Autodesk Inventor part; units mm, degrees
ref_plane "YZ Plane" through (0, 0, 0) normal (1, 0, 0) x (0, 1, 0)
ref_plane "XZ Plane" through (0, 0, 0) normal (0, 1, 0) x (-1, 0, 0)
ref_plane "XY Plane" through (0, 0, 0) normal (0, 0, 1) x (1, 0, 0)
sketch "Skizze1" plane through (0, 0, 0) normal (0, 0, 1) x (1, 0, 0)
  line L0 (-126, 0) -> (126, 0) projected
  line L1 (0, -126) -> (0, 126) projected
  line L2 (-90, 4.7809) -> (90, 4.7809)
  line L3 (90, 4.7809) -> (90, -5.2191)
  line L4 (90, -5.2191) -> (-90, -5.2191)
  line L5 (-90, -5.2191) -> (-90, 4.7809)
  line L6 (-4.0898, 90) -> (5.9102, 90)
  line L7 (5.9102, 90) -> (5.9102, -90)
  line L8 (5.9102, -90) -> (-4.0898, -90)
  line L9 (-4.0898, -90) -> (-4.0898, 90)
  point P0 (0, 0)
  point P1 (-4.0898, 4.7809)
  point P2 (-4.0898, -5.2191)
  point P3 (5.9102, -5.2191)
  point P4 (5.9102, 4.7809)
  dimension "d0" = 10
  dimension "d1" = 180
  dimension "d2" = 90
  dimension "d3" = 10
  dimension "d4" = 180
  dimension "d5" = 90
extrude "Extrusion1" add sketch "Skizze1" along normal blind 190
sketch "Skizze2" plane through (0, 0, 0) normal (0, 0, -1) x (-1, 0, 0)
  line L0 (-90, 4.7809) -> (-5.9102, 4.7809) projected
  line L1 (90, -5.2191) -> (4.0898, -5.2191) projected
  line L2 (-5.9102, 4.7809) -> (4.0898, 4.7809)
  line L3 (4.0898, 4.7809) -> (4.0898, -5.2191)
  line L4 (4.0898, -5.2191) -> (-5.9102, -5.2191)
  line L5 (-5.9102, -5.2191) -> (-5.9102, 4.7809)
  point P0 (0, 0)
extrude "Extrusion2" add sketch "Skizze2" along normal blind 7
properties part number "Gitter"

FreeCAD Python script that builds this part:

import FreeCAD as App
import Part
import Sketcher

doc = App.newDocument("Part")
body = doc.addObject("PartDesign::Body", "Body")

# Sketch on XY plane
sketch1 = body.newObject("Sketcher::SketchObject", "Sketch")
sketch1.AttachmentSupport = (doc.getObject("XY_Plane"), [""])
sketch1.MapMode = "FlatFace"
sketch1.addGeometry(Part.LineSegment(App.Vector(-90, 4.7809, 0), App.Vector(-90, -5.2191, 0)), False)
sketch1.addGeometry(Part.LineSegment(App.Vector(-90, -5.2191, 0), App.Vector(-4.0898, -5.2191, 0)), False)
sketch1.addGeometry(Part.LineSegment(App.Vector(-4.0898, -5.2191, 0), App.Vector(-4.0898, -90, 0)), False)
sketch1.addGeometry(Part.LineSegment(App.Vector(-4.0898, -90, 0), App.Vector(5.9102, -90, 0)), False)
sketch1.addGeometry(Part.LineSegment(App.Vector(5.9102, -90, 0), App.Vector(5.9102, -5.2191, 0)), False)
sketch1.addGeometry(Part.LineSegment(App.Vector(5.9102, -5.2191, 0), App.Vector(90, -5.2191, 0)), False)
sketch1.addGeometry(Part.LineSegment(App.Vector(90, -5.2191, 0), App.Vector(90, 4.7809, 0)), False)
sketch1.addGeometry(Part.LineSegment(App.Vector(90, 4.7809, 0), App.Vector(5.9102, 4.7809, 0)), False)
sketch1.addGeometry(Part.LineSegment(App.Vector(5.9102, 4.7809, 0), App.Vector(5.9102, 90, 0)), False)
sketch1.addGeometry(Part.LineSegment(App.Vector(5.9102, 90, 0), App.Vector(-4.0898, 90, 0)), False)
sketch1.addGeometry(Part.LineSegment(App.Vector(-4.0898, 90, 0), App.Vector(-4.0898, 4.7809, 0)), False)
sketch1.addGeometry(Part.LineSegment(App.Vector(-4.0898, 4.7809, 0), App.Vector(-90, 4.7809, 0)), False)
sketch1.addConstraint(Sketcher.Constraint("Coincident", 0, 2, 1, 1))
sketch1.addConstraint(Sketcher.Constraint("Coincident", 1, 2, 2, 1))
sketch1.addConstraint(Sketcher.Constraint("Coincident", 2, 2, 3, 1))
sketch1.addConstraint(Sketcher.Constraint("Coincident", 3, 2, 4, 1))
sketch1.addConstraint(Sketcher.Constraint("Coincident", 4, 2, 5, 1))
sketch1.addConstraint(Sketcher.Constraint("Coincident", 5, 2, 6, 1))
sketch1.addConstraint(Sketcher.Constraint("Coincident", 6, 2, 7, 1))
sketch1.addConstraint(Sketcher.Constraint("Coincident", 7, 2, 8, 1))
sketch1.addConstraint(Sketcher.Constraint("Coincident", 8, 2, 9, 1))
sketch1.addConstraint(Sketcher.Constraint("Coincident", 9, 2, 10, 1))
sketch1.addConstraint(Sketcher.Constraint("Coincident", 10, 2, 11, 1))
sketch1.addConstraint(Sketcher.Constraint("Coincident", 11, 2, 0, 1))
sketch1.addConstraint(Sketcher.Constraint("Vertical", 0))
sketch1.addConstraint(Sketcher.Constraint("Horizontal", 1))
sketch1.addConstraint(Sketcher.Constraint("Vertical", 2))
sketch1.addConstraint(Sketcher.Constraint("Horizontal", 3))
sketch1.addConstraint(Sketcher.Constraint("Vertical", 4))
sketch1.addConstraint(Sketcher.Constraint("Horizontal", 5))
sketch1.addConstraint(Sketcher.Constraint("Vertical", 6))
sketch1.addConstraint(Sketcher.Constraint("Horizontal", 7))
sketch1.addConstraint(Sketcher.Constraint("Vertical", 8))
sketch1.addConstraint(Sketcher.Constraint("Horizontal", 9))
sketch1.addConstraint(Sketcher.Constraint("Vertical", 10))
sketch1.addConstraint(Sketcher.Constraint("Horizontal", 11))
sketch1.addConstraint(Sketcher.Constraint("Symmetric", 0, 2, 5, 2, -2))
sketch1.addConstraint(Sketcher.Constraint("Symmetric", 3, 2, 8, 2, -1))
sketch1.addConstraint(Sketcher.Constraint("Horizontal", 7, 2, 10, 2))
sketch1.addConstraint(Sketcher.Constraint("Vertical", 2, 2, 9, 2))
sketch1.addConstraint(Sketcher.Constraint("Equal", 9, 0))
sketch1.addConstraint(Sketcher.Constraint("DistanceX", 3, 1, 3, 2, 10.0))
sketch1.addConstraint(Sketcher.Constraint("DistanceX", 0, 2, -1, 1, 90.0))
sketch1.addConstraint(Sketcher.Constraint("DistanceY", 2, 2, -1, 1, 90.0))
sketch1.addConstraint(Sketcher.Constraint("DistanceY", 2, 2, 2, 1, 84.781))
sketch1.addConstraint(Sketcher.Constraint("DistanceX", 1, 1, 1, 2, 85.9102))
pad1 = body.newObject("PartDesign::Pad", "Pad")
pad1.Profile = sketch1
pad1.Length = 190

# Sketch on XY plane
sketch2 = body.newObject("Sketcher::SketchObject", "Sketch001")
sketch2.AttachmentSupport = (doc.getObject("XY_Plane"), [""])
sketch2.MapMode = "FlatFace"
sketch2.addGeometry(Part.LineSegment(App.Vector(-4.0898, 4.7809, 0), App.Vector(5.9102, 4.7809, 0)), False)
sketch2.addGeometry(Part.LineSegment(App.Vector(5.9102, 4.7809, 0), App.Vector(5.9102, -5.2191, 0)), False)
sketch2.addGeometry(Part.LineSegment(App.Vector(5.9102, -5.2191, 0), App.Vector(-4.0898, -5.2191, 0)), False)
sketch2.addGeometry(Part.LineSegment(App.Vector(-4.0898, -5.2191, 0), App.Vector(-4.0898, 4.7809, 0)), False)
sketch2.addConstraint(Sketcher.Constraint("Coincident", 0, 2, 1, 1))
sketch2.addConstraint(Sketcher.Constraint("Coincident", 1, 2, 2, 1))
sketch2.addConstraint(Sketcher.Constraint("Coincident", 2, 2, 3, 1))
sketch2.addConstraint(Sketcher.Constraint("Coincident", 3, 2, 0, 1))
sketch2.addConstraint(Sketcher.Constraint("Horizontal", 0))
sketch2.addConstraint(Sketcher.Constraint("Vertical", 1))
sketch2.addConstraint(Sketcher.Constraint("Horizontal", 2))
sketch2.addConstraint(Sketcher.Constraint("Vertical", 3))
sketch2.addConstraint(Sketcher.Constraint("Equal", 2, 1))
sketch2.addConstraint(Sketcher.Constraint("DistanceX", 0, 1, 0, 2, 10.0))
sketch2.addConstraint(Sketcher.Constraint("DistanceY", -1, 1, 0, 2, 4.781))
sketch2.addConstraint(Sketcher.Constraint("DistanceX", -1, 1, 0, 2, 5.9102))
pad2 = body.newObject("PartDesign::Pad", "Pad001")
pad2.Profile = sketch2
pad2.Length = 7
pad2.Reversed = True

doc.recompute()
